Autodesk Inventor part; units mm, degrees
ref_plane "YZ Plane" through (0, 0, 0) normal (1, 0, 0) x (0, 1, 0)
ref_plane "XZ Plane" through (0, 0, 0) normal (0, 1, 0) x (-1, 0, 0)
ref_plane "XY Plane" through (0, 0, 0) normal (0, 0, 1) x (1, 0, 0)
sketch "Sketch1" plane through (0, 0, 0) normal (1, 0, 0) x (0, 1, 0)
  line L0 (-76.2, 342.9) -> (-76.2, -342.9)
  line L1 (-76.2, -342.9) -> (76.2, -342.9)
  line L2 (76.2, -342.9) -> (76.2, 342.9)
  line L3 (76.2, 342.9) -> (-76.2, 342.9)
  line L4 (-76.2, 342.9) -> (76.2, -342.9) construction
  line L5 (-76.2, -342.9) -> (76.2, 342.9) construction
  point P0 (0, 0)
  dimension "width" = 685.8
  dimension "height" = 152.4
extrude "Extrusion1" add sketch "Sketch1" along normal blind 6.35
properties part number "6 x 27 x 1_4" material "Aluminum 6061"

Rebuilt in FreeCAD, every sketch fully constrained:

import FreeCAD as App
import Part
import Sketcher
Q = App.Units.Quantity


def add_polygon(sketch, points):
    """Adds a closed chain of lines whose ends are joined by coincident constraints."""
    first, n = sketch.GeometryCount, len(points)
    for a, b in zip(points, points[1:] + points[:1]):
        sketch.addGeometry(Part.LineSegment(App.Vector(*a, 0), App.Vector(*b, 0)), False)
    for i in range(n):
        sketch.addConstraint(Sketcher.Constraint("Coincident", first + i, 2, first + (i + 1) % n, 1))

doc = App.newDocument("Part")
body = doc.addObject("PartDesign::Body", "Body")

# Sketch on YZ plane
sketch1 = body.newObject("Sketcher::SketchObject", "Sketch")
sketch1.AttachmentSupport = (doc.getObject("YZ_Plane"), [""])
sketch1.MapMode = "FlatFace"
add_polygon(sketch1, [(76.2, 342.9), (-76.2, 342.9), (-76.2, -342.9), (76.2, -342.9)])  # lines 0-3
sketch1.addConstraint([
    Sketcher.Constraint("Horizontal", 0),
    Sketcher.Constraint("Vertical", 1),
    Sketcher.Constraint("Horizontal", 2),
    Sketcher.Constraint("Vertical", 3),
    Sketcher.Constraint("Symmetric", 0, 2, 2, 2, -1, 1),
    Sketcher.Constraint("DistanceX", 0, 2, 0, 1, Q("6 in")),
    Sketcher.Constraint("DistanceY", 1, 2, 1, 1, Q("27 in")),
])
pad1 = body.newObject("PartDesign::Pad", "Pad")
pad1.Profile = sketch1
pad1.Length = Q("0.25 in")

doc.recompute()
